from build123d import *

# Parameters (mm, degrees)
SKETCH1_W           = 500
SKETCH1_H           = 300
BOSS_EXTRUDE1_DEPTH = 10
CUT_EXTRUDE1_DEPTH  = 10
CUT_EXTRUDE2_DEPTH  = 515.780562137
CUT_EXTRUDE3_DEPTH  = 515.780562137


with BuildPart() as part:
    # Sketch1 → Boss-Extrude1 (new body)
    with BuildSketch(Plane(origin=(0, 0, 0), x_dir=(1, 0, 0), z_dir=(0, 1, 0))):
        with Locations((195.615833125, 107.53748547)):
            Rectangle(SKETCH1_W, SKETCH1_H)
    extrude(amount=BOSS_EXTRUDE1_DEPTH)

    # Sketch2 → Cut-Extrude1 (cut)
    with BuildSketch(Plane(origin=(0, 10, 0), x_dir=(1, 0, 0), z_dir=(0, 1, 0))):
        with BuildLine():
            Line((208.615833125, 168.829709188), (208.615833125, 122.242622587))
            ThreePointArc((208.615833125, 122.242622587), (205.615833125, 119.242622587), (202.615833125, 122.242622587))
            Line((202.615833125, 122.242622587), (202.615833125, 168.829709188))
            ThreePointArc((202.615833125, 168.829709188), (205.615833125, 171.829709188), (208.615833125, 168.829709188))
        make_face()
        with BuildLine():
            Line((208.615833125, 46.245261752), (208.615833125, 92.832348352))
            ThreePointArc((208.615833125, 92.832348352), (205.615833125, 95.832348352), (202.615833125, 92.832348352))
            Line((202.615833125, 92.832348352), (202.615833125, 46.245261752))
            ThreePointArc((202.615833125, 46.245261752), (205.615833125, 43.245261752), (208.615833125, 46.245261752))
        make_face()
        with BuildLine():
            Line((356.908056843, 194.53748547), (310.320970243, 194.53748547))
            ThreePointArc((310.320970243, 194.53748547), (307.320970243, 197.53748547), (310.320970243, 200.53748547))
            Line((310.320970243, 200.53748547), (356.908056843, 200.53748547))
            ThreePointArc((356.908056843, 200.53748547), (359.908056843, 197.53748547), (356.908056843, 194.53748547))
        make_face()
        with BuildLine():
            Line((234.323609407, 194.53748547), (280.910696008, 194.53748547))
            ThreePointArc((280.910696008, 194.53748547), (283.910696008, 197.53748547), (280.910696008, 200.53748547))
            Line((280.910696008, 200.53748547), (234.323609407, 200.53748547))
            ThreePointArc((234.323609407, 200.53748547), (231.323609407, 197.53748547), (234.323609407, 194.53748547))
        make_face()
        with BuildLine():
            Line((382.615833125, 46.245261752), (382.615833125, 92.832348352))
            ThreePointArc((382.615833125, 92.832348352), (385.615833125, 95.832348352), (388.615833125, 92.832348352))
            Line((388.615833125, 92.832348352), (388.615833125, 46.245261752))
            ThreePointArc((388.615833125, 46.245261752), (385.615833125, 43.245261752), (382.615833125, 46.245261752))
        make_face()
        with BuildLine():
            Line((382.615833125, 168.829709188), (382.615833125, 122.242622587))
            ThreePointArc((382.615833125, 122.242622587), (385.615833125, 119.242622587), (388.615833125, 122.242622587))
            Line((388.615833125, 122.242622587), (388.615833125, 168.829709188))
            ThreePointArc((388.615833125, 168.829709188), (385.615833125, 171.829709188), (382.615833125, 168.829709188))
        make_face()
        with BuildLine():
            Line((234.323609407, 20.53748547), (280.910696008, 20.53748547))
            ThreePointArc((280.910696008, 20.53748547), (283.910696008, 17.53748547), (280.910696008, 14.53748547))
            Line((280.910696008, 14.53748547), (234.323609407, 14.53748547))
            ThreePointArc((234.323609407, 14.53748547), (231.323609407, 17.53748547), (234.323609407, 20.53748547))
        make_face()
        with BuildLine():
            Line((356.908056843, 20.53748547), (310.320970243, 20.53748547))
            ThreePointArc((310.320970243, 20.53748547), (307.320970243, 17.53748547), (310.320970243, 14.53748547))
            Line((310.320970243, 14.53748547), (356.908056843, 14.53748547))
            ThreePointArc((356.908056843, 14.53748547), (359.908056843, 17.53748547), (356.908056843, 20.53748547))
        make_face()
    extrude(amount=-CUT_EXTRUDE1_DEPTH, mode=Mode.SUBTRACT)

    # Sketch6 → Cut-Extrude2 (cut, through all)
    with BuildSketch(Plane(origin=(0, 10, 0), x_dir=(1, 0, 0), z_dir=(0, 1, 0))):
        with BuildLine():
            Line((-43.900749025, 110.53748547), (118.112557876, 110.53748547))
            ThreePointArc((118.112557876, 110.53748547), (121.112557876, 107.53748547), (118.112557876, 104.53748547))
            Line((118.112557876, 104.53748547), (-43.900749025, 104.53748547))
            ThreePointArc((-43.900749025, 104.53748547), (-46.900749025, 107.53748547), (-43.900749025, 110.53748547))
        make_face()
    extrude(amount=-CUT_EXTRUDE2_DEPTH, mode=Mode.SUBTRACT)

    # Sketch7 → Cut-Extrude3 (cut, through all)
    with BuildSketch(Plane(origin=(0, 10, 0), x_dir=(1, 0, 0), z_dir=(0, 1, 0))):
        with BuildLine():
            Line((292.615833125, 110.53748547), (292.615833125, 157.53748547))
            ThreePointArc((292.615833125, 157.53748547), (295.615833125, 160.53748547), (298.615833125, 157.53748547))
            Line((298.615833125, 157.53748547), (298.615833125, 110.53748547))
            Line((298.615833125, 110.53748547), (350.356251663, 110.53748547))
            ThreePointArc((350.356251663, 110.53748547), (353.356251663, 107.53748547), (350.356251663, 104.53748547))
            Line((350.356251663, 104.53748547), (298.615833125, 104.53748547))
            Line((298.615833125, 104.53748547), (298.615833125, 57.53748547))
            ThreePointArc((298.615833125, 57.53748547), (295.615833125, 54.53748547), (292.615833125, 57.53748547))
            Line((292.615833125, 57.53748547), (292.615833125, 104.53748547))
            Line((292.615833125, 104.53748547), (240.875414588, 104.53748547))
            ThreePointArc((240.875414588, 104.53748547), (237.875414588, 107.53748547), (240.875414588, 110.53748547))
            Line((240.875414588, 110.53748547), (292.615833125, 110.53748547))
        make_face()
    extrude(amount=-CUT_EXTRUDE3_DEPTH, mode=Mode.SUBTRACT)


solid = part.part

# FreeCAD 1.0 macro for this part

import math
import FreeCAD as App
import Part
import Sketcher

V = App.Vector


def add_polygon(sketch, points):
    """Adds a closed chain of lines whose ends are joined by coincident constraints."""
    first, n = sketch.GeometryCount, len(points)
    for a, b in zip(points, points[1:] + points[:1]):
        sketch.addGeometry(Part.LineSegment(App.Vector(*a, 0), App.Vector(*b, 0)), False)
    for i in range(n):
        sketch.addConstraint(Sketcher.Constraint("Coincident", first + i, 2, first + (i + 1) % n, 1))

doc = App.newDocument("Part")
body = doc.addObject("PartDesign::Body", "Body")

# Sketch on XZ plane
sketch1 = body.newObject("Sketcher::SketchObject", "Sketch")
sketch1.AttachmentSupport = (doc.getObject("XZ_Plane"), [""])
sketch1.MapMode = "FlatFace"
add_polygon(sketch1, [(-54.384167, -257.537485), (-54.384167, 42.462515), (445.615833, 42.462515), (445.615833, -257.537485)])  # lines 0-3
sketch1.addConstraint([
    Sketcher.Constraint("Vertical", 0),
    Sketcher.Constraint("Horizontal", 1),
    Sketcher.Constraint("Vertical", 2),
    Sketcher.Constraint("Horizontal", 3),
    Sketcher.Constraint("DistanceX", 1, 1, 1, 2, 500.0),
    Sketcher.Constraint("DistanceY", 0, 1, 0, 2, 300.0),
    Sketcher.Constraint("DistanceX", 0, 2, -1, 1, 54.384167),
    Sketcher.Constraint("DistanceY", -1, 1, 0, 2, 42.462515),
])
pad1 = body.newObject("PartDesign::Pad", "Pad")
pad1.Profile = sketch1
pad1.Length = 10
pad1.Reversed = True

# Sketch on XZ plane
sketch2 = body.newObject("Sketcher::SketchObject", "Sketch001")
sketch2.AttachmentSupport = (doc.getObject("XZ_Plane"), [""])
sketch2.MapMode = "FlatFace"
sketch2.AttachmentOffset = App.Placement(V(0, 0, -10), App.Rotation())
sketch2.addGeometry([
    Part.LineSegment(V(208.615833, -122.242623, 0), V(208.615833, -168.829709, 0)),  # 0
    Part.ArcOfCircle(Part.Circle(V(205.615833, -168.829709, 0), V(0, 0, 1), 3), math.radians(180), math.radians(360)),  # 1
    Part.LineSegment(V(202.615833, -168.829709, 0), V(202.615833, -122.242623, 0)),  # 2
    Part.ArcOfCircle(Part.Circle(V(205.615833, -122.242623, 0), V(0, 0, 1), 3), math.radians(0), math.radians(180)),  # 3
    Part.LineSegment(V(208.615833, -46.245262, 0), V(208.615833, -92.832348, 0)),  # 4
    Part.ArcOfCircle(Part.Circle(V(205.615833, -92.832348, 0), V(0, 0, 1), 3), math.radians(180), math.radians(360)),  # 5
    Part.LineSegment(V(202.615833, -92.832348, 0), V(202.615833, -46.245262, 0)),  # 6
    Part.ArcOfCircle(Part.Circle(V(205.615833, -46.245262, 0), V(0, 0, 1), 3), math.radians(0), math.radians(180)),  # 7
    Part.LineSegment(V(310.32097, -194.537485, 0), V(356.908057, -194.537485, 0)),  # 8
    Part.ArcOfCircle(Part.Circle(V(356.908057, -197.537485, 0), V(0, 0, 1), 3), math.radians(-90), math.radians(90)),  # 9
    Part.LineSegment(V(356.908057, -200.537485, 0), V(310.32097, -200.537485, 0)),  # 10
    Part.ArcOfCircle(Part.Circle(V(310.32097, -197.537485, 0), V(0, 0, 1), 3), math.radians(90), math.radians(270)),  # 11
    Part.LineSegment(V(234.323609, -194.537485, 0), V(280.910696, -194.537485, 0)),  # 12
    Part.ArcOfCircle(Part.Circle(V(280.910696, -197.537485, 0), V(0, 0, 1), 3), math.radians(-90), math.radians(90)),  # 13
    Part.LineSegment(V(280.910696, -200.537485, 0), V(234.323609, -200.537485, 0)),  # 14
    Part.ArcOfCircle(Part.Circle(V(234.323609, -197.537485, 0), V(0, 0, 1), 3), math.radians(90), math.radians(270)),  # 15
    Part.LineSegment(V(382.615833, -92.832348, 0), V(382.615833, -46.245262, 0)),  # 16
    Part.ArcOfCircle(Part.Circle(V(385.615833, -46.245262, 0), V(0, 0, 1), 3), math.radians(0), math.radians(180)),  # 17
    Part.LineSegment(V(388.615833, -46.245262, 0), V(388.615833, -92.832348, 0)),  # 18
    Part.ArcOfCircle(Part.Circle(V(385.615833, -92.832348, 0), V(0, 0, 1), 3), math.radians(180), math.radians(360)),  # 19
    Part.LineSegment(V(382.615833, -168.829709, 0), V(382.615833, -122.242623, 0)),  # 20
    Part.ArcOfCircle(Part.Circle(V(385.615833, -122.242623, 0), V(0, 0, 1), 3), math.radians(0), math.radians(180)),  # 21
    Part.LineSegment(V(388.615833, -122.242623, 0), V(388.615833, -168.829709, 0)),  # 22
    Part.ArcOfCircle(Part.Circle(V(385.615833, -168.829709, 0), V(0, 0, 1), 3), math.radians(180), math.radians(360)),  # 23
    Part.LineSegment(V(280.910696, -20.537485, 0), V(234.323609, -20.537485, 0)),  # 24
    Part.ArcOfCircle(Part.Circle(V(234.323609, -17.537485, 0), V(0, 0, 1), 3), math.radians(90), math.radians(270)),  # 25
    Part.LineSegment(V(234.323609, -14.537485, 0), V(280.910696, -14.537485, 0)),  # 26
    Part.ArcOfCircle(Part.Circle(V(280.910696, -17.537485, 0), V(0, 0, 1), 3), math.radians(-90), math.radians(90)),  # 27
    Part.LineSegment(V(356.908057, -20.537485, 0), V(310.32097, -20.537485, 0)),  # 28
    Part.ArcOfCircle(Part.Circle(V(310.32097, -17.537485, 0), V(0, 0, 1), 3), math.radians(90), math.radians(270)),  # 29
    Part.LineSegment(V(310.32097, -14.537485, 0), V(356.908057, -14.537485, 0)),  # 30
    Part.ArcOfCircle(Part.Circle(V(356.908057, -17.537485, 0), V(0, 0, 1), 3), math.radians(-90), math.radians(90)),  # 31
], False)
sketch2.addConstraint([
    Sketcher.Constraint("Tangent", 0, 2, 1, 2),
    Sketcher.Constraint("Tangent", 1, 1, 2, 1),
    Sketcher.Constraint("Tangent", 2, 2, 3, 2),
    Sketcher.Constraint("Tangent", 3, 1, 0, 1),
    Sketcher.Constraint("Tangent", 4, 2, 5, 2),
    Sketcher.Constraint("Tangent", 5, 1, 6, 1),
    Sketcher.Constraint("Tangent", 6, 2, 7, 2),
    Sketcher.Constraint("Tangent", 7, 1, 4, 1),
    Sketcher.Constraint("Tangent", 8, 2, 9, 2),
    Sketcher.Constraint("Tangent", 9, 1, 10, 1),
    Sketcher.Constraint("Tangent", 10, 2, 11, 2),
    Sketcher.Constraint("Tangent", 11, 1, 8, 1),
    Sketcher.Constraint("Tangent", 12, 2, 13, 2),
    Sketcher.Constraint("Tangent", 13, 1, 14, 1),
    Sketcher.Constraint("Tangent", 14, 2, 15, 2),
    Sketcher.Constraint("Tangent", 15, 1, 12, 1),
    Sketcher.Constraint("Tangent", 16, 2, 17, 2),
    Sketcher.Constraint("Tangent", 17, 1, 18, 1),
    Sketcher.Constraint("Tangent", 18, 2, 19, 2),
    Sketcher.Constraint("Tangent", 19, 1, 16, 1),
    Sketcher.Constraint("Tangent", 20, 2, 21, 2),
    Sketcher.Constraint("Tangent", 21, 1, 22, 1),
    Sketcher.Constraint("Tangent", 22, 2, 23, 2),
    Sketcher.Constraint("Tangent", 23, 1, 20, 1),
    Sketcher.Constraint("Tangent", 24, 2, 25, 2),
    Sketcher.Constraint("Tangent", 25, 1, 26, 1),
    Sketcher.Constraint("Tangent", 26, 2, 27, 2),
    Sketcher.Constraint("Tangent", 27, 1, 24, 1),
    Sketcher.Constraint("Tangent", 28, 2, 29, 2),
    Sketcher.Constraint("Tangent", 29, 1, 30, 1),
    Sketcher.Constraint("Tangent", 30, 2, 31, 2),
    Sketcher.Constraint("Tangent", 31, 1, 28, 1),
    Sketcher.Constraint("Vertical", 0),
    Sketcher.Constraint("Vertical", 2),
    Sketcher.Constraint("Vertical", 4),
    Sketcher.Constraint("Vertical", 6),
    Sketcher.Constraint("Horizontal", 8),
    Sketcher.Constraint("Horizontal", 10),
    Sketcher.Constraint("Horizontal", 12),
    Sketcher.Constraint("Horizontal", 14),
    Sketcher.Constraint("Vertical", 16),
    Sketcher.Constraint("Vertical", 18),
    Sketcher.Constraint("Vertical", 20),
    Sketcher.Constraint("Vertical", 22),
    Sketcher.Constraint("Horizontal", 24),
    Sketcher.Constraint("Horizontal", 26),
    Sketcher.Constraint("Horizontal", 28),
    Sketcher.Constraint("Horizontal", 30),
    Sketcher.Constraint("Equal", 3, 5),
    Sketcher.Constraint("Equal", 7, 9),
    Sketcher.Constraint("Equal", 11, 13),
    Sketcher.Constraint("Equal", 15, 17),
    Sketcher.Constraint("Equal", 19, 21),
    Sketcher.Constraint("Equal", 23, 25),
    Sketcher.Constraint("Equal", 27, 29),
    Sketcher.Constraint("Horizontal", 11, 3, 13, 3),
    Sketcher.Constraint("Horizontal", 7, 3, 17, 3),
    Sketcher.Constraint("Horizontal", 5, 3, 19, 3),
    Sketcher.Constraint("Horizontal", 3, 3, 21, 3),
    Sketcher.Constraint("Horizontal", 1, 3, 23, 3),
    Sketcher.Constraint("Horizontal", 27, 3, 29, 3),
    Sketcher.Constraint("Vertical", 3, 3, 5, 3),
    Sketcher.Constraint("Vertical", 19, 3, 21, 3),
    Sketcher.Constraint("Vertical", 15, 3, 25, 3),
    Sketcher.Constraint("Vertical", 13, 3, 27, 3),
    Sketcher.Constraint("Vertical", 11, 3, 29, 3),
    Sketcher.Constraint("Vertical", 9, 3, 31, 3),
    Sketcher.Constraint("Equal", 10, 12),
    Sketcher.Constraint("Equal", 30, 0),
    Sketcher.Constraint("Equal", 2, 4),
    Sketcher.Constraint("Radius", 1, 3.0),
    Sketcher.Constraint("DistanceX", 7, 3, 17, 3, 180.0),
    Sketcher.Constraint("DistanceX", 8, 1, 8, 2, 46.587087),
    Sketcher.Constraint("DistanceY", 1, 3, -1, 1, 168.829709),
    Sketcher.Constraint("DistanceY", 5, 3, -1, 1, 92.832348),
    Sketcher.Constraint("DistanceX", -1, 1, 11, 3, 310.32097),
    Sketcher.Constraint("DistanceX", -1, 1, 15, 3, 234.323609),
    Sketcher.Constraint("DistanceX", -1, 1, 1, 3, 205.615833),
    Sketcher.Constraint("DistanceY", 9, 3, -1, 1, 197.537485),
    Sketcher.Constraint("DistanceY", 25, 3, -1, 1, 17.537485),
])
pocket1 = body.newObject("PartDesign::Pocket", "Pocket")
pocket1.Profile = sketch2
pocket1.Length = 10
pocket1.Reversed = True

# Sketch on XZ plane
sketch3 = body.newObject("Sketcher::SketchObject", "Sketch002")
sketch3.AttachmentSupport = (doc.getObject("XZ_Plane"), [""])
sketch3.MapMode = "FlatFace"
sketch3.AttachmentOffset = App.Placement(V(0, 0, -10), App.Rotation())
sketch3.addGeometry([
    Part.LineSegment(V(118.112558, -110.537485, 0), V(-43.900749, -110.537485, 0)),
    Part.ArcOfCircle(Part.Circle(V(-43.900749, -107.537485, 0), V(0, 0, 1), 3), math.radians(90), math.radians(270)),
    Part.LineSegment(V(-43.900749, -104.537485, 0), V(118.112558, -104.537485, 0)),
    Part.ArcOfCircle(Part.Circle(V(118.112558, -107.537485, 0), V(0, 0, 1), 3), math.radians(-90), math.radians(90)),
], False)
sketch3.addConstraint([
    Sketcher.Constraint("Tangent", 0, 2, 1, 2),
    Sketcher.Constraint("Tangent", 1, 1, 2, 1),
    Sketcher.Constraint("Tangent", 2, 2, 3, 2),
    Sketcher.Constraint("Tangent", 3, 1, 0, 1),
    Sketcher.Constraint("Horizontal", 0),
    Sketcher.Constraint("Horizontal", 2),
    Sketcher.Constraint("Radius", 1, 3.0),
    Sketcher.Constraint("DistanceX", 0, 2, 0, 1, 162.013307),
    Sketcher.Constraint("DistanceX", 1, 3, -1, 1, 43.900749),
    Sketcher.Constraint("DistanceY", 1, 3, -1, 1, 107.537485),
])
pocket2 = body.newObject("PartDesign::Pocket", "Pocket001")
pocket2.Profile = sketch3
pocket2.Type = "ThroughAll"
pocket2.Reversed = True

# Sketch on XZ plane
sketch4 = body.newObject("Sketcher::SketchObject", "Sketch003")
sketch4.AttachmentSupport = (doc.getObject("XZ_Plane"), [""])
sketch4.MapMode = "FlatFace"
sketch4.AttachmentOffset = App.Placement(V(0, 0, -10), App.Rotation())
sketch4.addGeometry([
    Part.LineSegment(V(292.615833, -157.537485, 0), V(292.615833, -110.537485, 0)),  # 0
    Part.LineSegment(V(292.615833, -110.537485, 0), V(240.875415, -110.537485, 0)),  # 1
    Part.ArcOfCircle(Part.Circle(V(240.875415, -107.537485, 0), V(0, 0, 1), 3), math.radians(90), math.radians(270)),  # 2
    Part.LineSegment(V(240.875415, -104.537485, 0), V(292.615833, -104.537485, 0)),  # 3
    Part.LineSegment(V(292.615833, -104.537485, 0), V(292.615833, -57.537485, 0)),  # 4
    Part.ArcOfCircle(Part.Circle(V(295.615833, -57.537485, 0), V(0, 0, 1), 3), math.radians(0), math.radians(180)),  # 5
    Part.LineSegment(V(298.615833, -57.537485, 0), V(298.615833, -104.537485, 0)),  # 6
    Part.LineSegment(V(298.615833, -104.537485, 0), V(350.356252, -104.537485, 0)),  # 7
    Part.ArcOfCircle(Part.Circle(V(350.356252, -107.537485, 0), V(0, 0, 1), 3), math.radians(-90), math.radians(90)),  # 8
    Part.LineSegment(V(350.356252, -110.537485, 0), V(298.615833, -110.537485, 0)),  # 9
    Part.LineSegment(V(298.615833, -110.537485, 0), V(298.615833, -157.537485, 0)),  # 10
    Part.ArcOfCircle(Part.Circle(V(295.615833, -157.537485, 0), V(0, 0, 1), 3), math.radians(180), math.radians(360)),  # 11
], False)
sketch4.addConstraint([
    Sketcher.Constraint("Coincident", 0, 2, 1, 1),
    Sketcher.Constraint("Tangent", 1, 2, 2, 2),
    Sketcher.Constraint("Tangent", 2, 1, 3, 1),
    Sketcher.Constraint("Coincident", 3, 2, 4, 1),
    Sketcher.Constraint("Tangent", 4, 2, 5, 2),
    Sketcher.Constraint("Tangent", 5, 1, 6, 1),
    Sketcher.Constraint("Coincident", 6, 2, 7, 1),
    Sketcher.Constraint("Tangent", 7, 2, 8, 2),
    Sketcher.Constraint("Tangent", 8, 1, 9, 1),
    Sketcher.Constraint("Coincident", 9, 2, 10, 1),
    Sketcher.Constraint("Tangent", 10, 2, 11, 2),
    Sketcher.Constraint("Tangent", 11, 1, 0, 1),
    Sketcher.Constraint("Vertical", 0),
    Sketcher.Constraint("Horizontal", 1),
    Sketcher.Constraint("Horizontal", 3),
    Sketcher.Constraint("Vertical", 4),
    Sketcher.Constraint("Vertical", 6),
    Sketcher.Constraint("Horizontal", 7),
    Sketcher.Constraint("Horizontal", 9),
    Sketcher.Constraint("Vertical", 10),
    Sketcher.Constraint("Equal", 2, 5),
    Sketcher.Constraint("Equal", 5, 8),
    Sketcher.Constraint("Equal", 8, 11),
    Sketcher.Constraint("Horizontal", 2, 3, 8, 3),
    Sketcher.Constraint("Vertical", 5, 3, 11, 3),
    Sketcher.Constraint("Equal", 3, 7),
    Sketcher.Constraint("Equal", 0, 4),
    Sketcher.Constraint("Radius", 2, 3.0),
    Sketcher.Constraint("DistanceY", 0, 1, 0, 2, 47.0),
    Sketcher.Constraint("DistanceX", 1, 2, 1, 1, 51.740419),
    Sketcher.Constraint("DistanceX", -1, 1, 8, 3, 350.356252),
    Sketcher.Constraint("DistanceY", 2, 3, -1, 1, 107.537485),
])
pocket3 = body.newObject("PartDesign::Pocket", "Pocket002")
pocket3.Profile = sketch4
pocket3.Type = "ThroughAll"
pocket3.Reversed = True

doc.recompute()
